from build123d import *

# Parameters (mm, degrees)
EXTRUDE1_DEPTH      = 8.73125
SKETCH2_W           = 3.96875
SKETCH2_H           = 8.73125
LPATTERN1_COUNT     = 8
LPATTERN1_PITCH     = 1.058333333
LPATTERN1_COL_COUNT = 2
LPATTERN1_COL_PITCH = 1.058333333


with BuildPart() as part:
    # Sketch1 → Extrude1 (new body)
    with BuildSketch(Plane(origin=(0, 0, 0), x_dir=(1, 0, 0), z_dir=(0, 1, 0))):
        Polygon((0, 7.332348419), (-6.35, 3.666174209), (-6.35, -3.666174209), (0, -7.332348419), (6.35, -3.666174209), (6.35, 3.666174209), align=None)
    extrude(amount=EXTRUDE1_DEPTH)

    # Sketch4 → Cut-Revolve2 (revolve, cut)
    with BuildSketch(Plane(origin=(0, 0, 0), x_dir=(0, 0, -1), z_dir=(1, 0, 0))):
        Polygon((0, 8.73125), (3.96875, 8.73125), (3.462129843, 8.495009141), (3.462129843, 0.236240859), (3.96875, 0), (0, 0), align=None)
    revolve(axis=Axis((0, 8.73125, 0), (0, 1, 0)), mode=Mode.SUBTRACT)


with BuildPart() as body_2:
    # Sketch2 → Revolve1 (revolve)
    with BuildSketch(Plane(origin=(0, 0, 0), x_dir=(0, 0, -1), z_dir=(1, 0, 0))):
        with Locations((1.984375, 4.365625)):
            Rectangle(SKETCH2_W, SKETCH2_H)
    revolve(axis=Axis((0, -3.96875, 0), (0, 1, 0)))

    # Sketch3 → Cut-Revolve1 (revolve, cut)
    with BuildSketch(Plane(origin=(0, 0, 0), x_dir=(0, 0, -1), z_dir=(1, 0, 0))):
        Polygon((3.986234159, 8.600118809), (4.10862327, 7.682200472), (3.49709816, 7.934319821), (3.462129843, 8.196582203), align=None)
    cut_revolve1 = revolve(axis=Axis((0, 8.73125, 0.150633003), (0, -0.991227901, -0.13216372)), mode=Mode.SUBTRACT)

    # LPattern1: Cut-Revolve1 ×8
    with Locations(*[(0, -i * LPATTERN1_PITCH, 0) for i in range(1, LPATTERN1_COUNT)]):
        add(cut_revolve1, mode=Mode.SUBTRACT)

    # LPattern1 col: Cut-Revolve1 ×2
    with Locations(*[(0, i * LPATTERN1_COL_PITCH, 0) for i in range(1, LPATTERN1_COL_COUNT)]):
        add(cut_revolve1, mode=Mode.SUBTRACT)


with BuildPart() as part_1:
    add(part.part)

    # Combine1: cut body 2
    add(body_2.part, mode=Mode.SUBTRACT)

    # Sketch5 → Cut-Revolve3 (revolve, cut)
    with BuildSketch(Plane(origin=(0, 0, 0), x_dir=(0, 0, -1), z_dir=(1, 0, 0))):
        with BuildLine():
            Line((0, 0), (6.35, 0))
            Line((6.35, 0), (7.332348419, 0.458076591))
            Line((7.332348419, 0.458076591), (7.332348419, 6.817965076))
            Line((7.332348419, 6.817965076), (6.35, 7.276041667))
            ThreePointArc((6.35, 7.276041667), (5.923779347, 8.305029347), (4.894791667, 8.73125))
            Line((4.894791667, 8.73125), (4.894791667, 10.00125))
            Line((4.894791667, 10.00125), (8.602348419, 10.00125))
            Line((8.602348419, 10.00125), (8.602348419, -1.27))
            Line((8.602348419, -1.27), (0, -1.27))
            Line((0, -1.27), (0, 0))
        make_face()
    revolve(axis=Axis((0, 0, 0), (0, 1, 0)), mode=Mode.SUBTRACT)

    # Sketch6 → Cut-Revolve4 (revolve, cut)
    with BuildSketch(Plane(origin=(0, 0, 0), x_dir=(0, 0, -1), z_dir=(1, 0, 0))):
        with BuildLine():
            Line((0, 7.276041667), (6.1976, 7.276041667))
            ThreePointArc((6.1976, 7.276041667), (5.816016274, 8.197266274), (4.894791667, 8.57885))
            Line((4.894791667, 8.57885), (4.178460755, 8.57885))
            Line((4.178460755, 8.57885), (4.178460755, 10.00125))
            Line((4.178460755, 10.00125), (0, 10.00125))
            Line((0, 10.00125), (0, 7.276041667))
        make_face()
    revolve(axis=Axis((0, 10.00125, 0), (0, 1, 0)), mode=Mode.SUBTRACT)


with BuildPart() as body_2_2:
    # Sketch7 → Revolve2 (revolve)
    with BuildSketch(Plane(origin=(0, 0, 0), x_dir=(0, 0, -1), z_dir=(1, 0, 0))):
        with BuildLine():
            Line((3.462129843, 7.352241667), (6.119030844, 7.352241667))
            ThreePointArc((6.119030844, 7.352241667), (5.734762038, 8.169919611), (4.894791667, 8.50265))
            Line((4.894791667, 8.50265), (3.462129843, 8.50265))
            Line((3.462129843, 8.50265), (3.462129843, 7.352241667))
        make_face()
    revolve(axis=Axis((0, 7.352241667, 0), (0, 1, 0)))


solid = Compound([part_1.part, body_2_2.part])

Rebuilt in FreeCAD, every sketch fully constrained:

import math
import FreeCAD as App
import Part
import Sketcher

V = App.Vector
Q = App.Units.Quantity

doc = App.newDocument("Part")
body = doc.addObject("PartDesign::Body", "Body")

# Sketch on XZ plane
sketch1 = body.newObject("Sketcher::SketchObject", "Sketch")
sketch1.AttachmentSupport = (doc.getObject("XZ_Plane"), [""])
sketch1.MapMode = "FlatFace"
sketch1.addGeometry([
    Part.LineSegment(V(0, -7, 0), V(-6, -4, 0)),  # 0
    Part.LineSegment(V(-6, -4, 0), V(-6, 4, 0)),  # 1
    Part.LineSegment(V(-6, 4, 0), V(0, 7, 0)),  # 2
    Part.LineSegment(V(0, 7, 0), V(6, 4, 0)),  # 3
    Part.LineSegment(V(6, 4, 0), V(6, -4, 0)),  # 4
    Part.LineSegment(V(6, -4, 0), V(0, -7, 0)),  # 5
], False)
sketch1.addConstraint([
    Sketcher.Constraint("Coincident", 0, 2, 1, 1),
    Sketcher.Constraint("Coincident", 1, 2, 2, 1),
    Sketcher.Constraint("Coincident", 2, 2, 3, 1),
    Sketcher.Constraint("Coincident", 3, 2, 4, 1),
    Sketcher.Constraint("Coincident", 4, 2, 5, 1),
    Sketcher.Constraint("Coincident", 5, 2, 0, 1),
    Sketcher.Constraint("Vertical", 1),
    Sketcher.Constraint("Vertical", 4),
    Sketcher.Constraint("Symmetric", 0, 2, 3, 2, -1, 1),
    Sketcher.Constraint("Symmetric", 2, 2, 5, 2, -1, 1),
    Sketcher.Constraint("PointOnObject", 2, 2, -2),
    Sketcher.Constraint("Parallel", 2, 5),
    Sketcher.Constraint("Horizontal", 1, 2, 3, 2),
    Sketcher.Constraint("Angle", 0, Q("150 deg")),
    Sketcher.Constraint("DistanceX", 1, 2, 3, 2, Q("0.5 in")),
    Sketcher.Constraint("DistanceY", 1, 1, 1, 2, Q("7.332348 mm")),
])
pad1 = body.newObject("PartDesign::Pad", "Pad")
pad1.Profile = sketch1
pad1.Length = Q("0.34375 in")
pad1.Reversed = True

# Sketch on YZ plane
sketch2 = body.newObject("Sketcher::SketchObject", "Sketch001")
sketch2.AttachmentSupport = (doc.getObject("YZ_Plane"), [""])
sketch2.MapMode = "FlatFace"
sketch2.addGeometry([
    Part.LineSegment(V(8.7, -4, 0), V(8.7, 0, 0)),  # 0
    Part.LineSegment(V(8.7, 0, 0), V(0, 0, 0)),  # 1
    Part.LineSegment(V(0, 0, 0), V(0, -4, 0)),  # 2
    Part.LineSegment(V(0, -4, 0), V(0.2, -3.5, 0)),  # 3
    Part.LineSegment(V(0.2, -3.5, 0), V(8.5, -3.5, 0)),  # 4
    Part.LineSegment(V(8.5, -3.5, 0), V(8.7, -4, 0)),  # 5
], False)
sketch2.addConstraint([
    Sketcher.Constraint("Coincident", 0, 2, 1, 1),
    Sketcher.Constraint("Coincident", 1, 2, 2, 1),
    Sketcher.Constraint("Coincident", 2, 2, 3, 1),
    Sketcher.Constraint("Coincident", 3, 2, 4, 1),
    Sketcher.Constraint("Coincident", 4, 2, 5, 1),
    Sketcher.Constraint("Coincident", 5, 2, 0, 1),
    Sketcher.Constraint("Vertical", 0),
    Sketcher.Constraint("Horizontal", 1),
    Sketcher.Constraint("Vertical", 2),
    Sketcher.Constraint("Horizontal", 4),
    Sketcher.Constraint("Coincident", 1, 2, -1, 1),
    Sketcher.Constraint("Horizontal", 2, 2, 5, 2),
    Sketcher.Constraint("Equal", 3, 5),
    Sketcher.Constraint("Angle", 3, Q("65 deg")),
    Sketcher.Constraint("DistanceX", 1, 2, 1, 1, Q("0.34375 in")),
    Sketcher.Constraint("DistanceY", 0, 1, 0, 2, Q("0.15625 in")),
    Sketcher.Constraint("DistanceX", 4, 1, 4, 2, Q("8.258768 mm")),
])
groove = body.newObject("PartDesign::Groove", "Groove")
groove.Profile = sketch2
groove.ReferenceAxis = (sketch2, ["H_Axis"])
groove.Angle = 360
body2 = doc.addObject("PartDesign::Body", "Body001")

# Sketch on YZ plane
sketch3 = body2.newObject("Sketcher::SketchObject", "Sketch002")
sketch3.AttachmentSupport = (doc.getObject("YZ_Plane001"), [""])
sketch3.MapMode = "FlatFace"
sketch3.addGeometry([
    Part.LineSegment(V(8.7, 0, 0), V(0, 0, 0)),
    Part.LineSegment(V(0, 0, 0), V(0, -4, 0)),
    Part.LineSegment(V(0, -4, 0), V(8.7, -4, 0)),
    Part.LineSegment(V(8.7, -4, 0), V(8.7, 0, 0)),
], False)
sketch3.addConstraint([
    Sketcher.Constraint("Coincident", 0, 2, 1, 1),
    Sketcher.Constraint("Coincident", 1, 2, 2, 1),
    Sketcher.Constraint("Coincident", 2, 2, 3, 1),
    Sketcher.Constraint("Coincident", 3, 2, 0, 1),
    Sketcher.Constraint("Horizontal", 0),
    Sketcher.Constraint("Vertical", 1),
    Sketcher.Constraint("Horizontal", 2),
    Sketcher.Constraint("Vertical", 3),
    Sketcher.Constraint("Coincident", 0, 2, -1, 1),
    Sketcher.Constraint("DistanceX", 0, 2, 0, 1, Q("0.34375 in")),
    Sketcher.Constraint("DistanceY", 1, 2, 1, 1, Q("0.15625 in")),
])
revolution = body2.newObject("PartDesign::Revolution", "Revolution")
revolution.Profile = sketch3
revolution.ReferenceAxis = (sketch3, ["H_Axis"])
revolution.Angle = 360

# Sketch on YZ plane
sketch4 = body2.newObject("Sketcher::SketchObject", "Sketch003")
sketch4.AttachmentSupport = (doc.getObject("YZ_Plane001"), [""])
sketch4.MapMode = "FlatFace"
sketch4.addGeometry([
    Part.LineSegment(V(7.68, -4.11, 0), V(8.6, -3.99, 0)),
    Part.LineSegment(V(8.6, -3.99, 0), V(8.2, -3.46, 0)),
    Part.LineSegment(V(8.2, -3.46, 0), V(7.93, -3.5, 0)),
    Part.LineSegment(V(7.93, -3.5, 0), V(7.68, -4.11, 0)),
], False)
sketch4.addGeometry(Part.LineSegment(V(8.06, 0.06, 0), V(7.14, -0.06, 0)), True)  # axis
sketch4.addConstraint([
    Sketcher.Constraint("Coincident", 0, 2, 1, 1),
    Sketcher.Constraint("Coincident", 1, 2, 2, 1),
    Sketcher.Constraint("Coincident", 2, 2, 3, 1),
    Sketcher.Constraint("Coincident", 3, 2, 0, 1),
    Sketcher.Constraint("Parallel", 0, 2),
    Sketcher.Constraint("Parallel", 2, 4),
    Sketcher.Constraint("Equal", 1, 3),
    Sketcher.Constraint("Equal", 0, 4),
    Sketcher.Constraint("DistanceX", -1, 1, 1, 2, Q("0.3227001 in")),
    Sketcher.Constraint("DistanceY", 2, 2, -1, 1, Q("3.497098 mm")),
    Sketcher.Constraint("DistanceX", -1, 1, 3, 2, Q("7.6822 mm")),
    Sketcher.Constraint("DistanceX", 2, 2, 0, 2, Q("0.665799 mm")),
    Sketcher.Constraint("Distance", 0, Q("0.926042 mm")),
    Sketcher.Constraint("Distance", 1, Q("0.661458 mm")),
    Sketcher.Constraint("DistanceX", -1, 1, 4, 1, Q("8.060462 mm")),
    Sketcher.Constraint("DistanceY", 0, 2, 4, 1, Q("4.047429 mm")),
])
groove2 = body2.newObject("PartDesign::Groove", "Groove001")
groove2.Profile = sketch4
groove2.ReferenceAxis = (sketch4, ["Axis0"])
groove2.Angle = 360
doc.recompute()

linearpattern = body2.newObject("PartDesign::LinearPattern", "LinearPattern")
linearpattern.Originals = [groove2]
linearpattern.Direction = (doc.getObject("Y_Axis001"), [""])
linearpattern.Mode = "offset"
linearpattern.Offset = 1.058333
linearpattern.Occurrences = 8
linearpattern.Reversed = True
body2.Tip = linearpattern
doc.recompute()

linearpattern2 = body2.newObject("PartDesign::LinearPattern", "LinearPattern001")
linearpattern2.Originals = [groove2]
linearpattern2.Direction = (doc.getObject("Y_Axis001"), [""])
linearpattern2.Mode = "offset"
linearpattern2.Offset = 1.058333
linearpattern2.Occurrences = 2
body2.Tip = linearpattern2
doc.recompute()

boolean = body.newObject("PartDesign::Boolean", "Boolean")
boolean.Type = "Cut"
boolean.addObjects([body2])

# Sketch on YZ plane
sketch5 = body.newObject("Sketcher::SketchObject", "Sketch004")
sketch5.AttachmentSupport = (doc.getObject("YZ_Plane"), [""])
sketch5.MapMode = "FlatFace"
sketch5.addGeometry([
    Part.LineSegment(V(0, -6.3, 0), V(0, 0, 0)),  # 0
    Part.LineSegment(V(0, 0, 0), V(-1.3, 0, 0)),  # 1
    Part.LineSegment(V(-1.3, 0, 0), V(-1.3, -8.6, 0)),  # 2
    Part.LineSegment(V(-1.3, -8.6, 0), V(10, -8.6, 0)),  # 3
    Part.LineSegment(V(10, -8.6, 0), V(10, -4.9, 0)),  # 4
    Part.LineSegment(V(10, -4.9, 0), V(8.7, -4.9, 0)),  # 5
    Part.ArcOfCircle(Part.Circle(V(7.3, -4.9, 0), V(0, 0, 1), 1.5), math.radians(-90), math.radians(0)),  # 6
    Part.LineSegment(V(7.3, -6.3, 0), V(6.8, -7.3, 0)),  # 7
    Part.LineSegment(V(6.8, -7.3, 0), V(0.5, -7.3, 0)),  # 8
    Part.LineSegment(V(0.5, -7.3, 0), V(0, -6.3, 0)),  # 9
], False)
sketch5.addConstraint([
    Sketcher.Constraint("Coincident", 0, 2, 1, 1),
    Sketcher.Constraint("Coincident", 1, 2, 2, 1),
    Sketcher.Constraint("Coincident", 2, 2, 3, 1),
    Sketcher.Constraint("Coincident", 3, 2, 4, 1),
    Sketcher.Constraint("Coincident", 4, 2, 5, 1),
    Sketcher.Constraint("Coincident", 5, 2, 6, 2),
    Sketcher.Constraint("Coincident", 6, 1, 7, 1),
    Sketcher.Constraint("Coincident", 7, 2, 8, 1),
    Sketcher.Constraint("Coincident", 8, 2, 9, 1),
    Sketcher.Constraint("Coincident", 9, 2, 0, 1),
    Sketcher.Constraint("Vertical", 0),
    Sketcher.Constraint("Horizontal", 1),
    Sketcher.Constraint("Vertical", 2),
    Sketcher.Constraint("Horizontal", 3),
    Sketcher.Constraint("Vertical", 4),
    Sketcher.Constraint("Horizontal", 5),
    Sketcher.Constraint("Horizontal", 8),
    Sketcher.Constraint("Coincident", 0, 2, -1, 1),
    Sketcher.Constraint("Horizontal", 6, 3, 4, 2),
    Sketcher.Constraint("Horizontal", 6, 1, 9, 2),
    Sketcher.Constraint("Equal", 1, 5),
    Sketcher.Constraint("Equal", 7, 9),
    Sketcher.Constraint("Angle", 7, Q("-115 deg")),
    Sketcher.Constraint("DistanceX", 1, 2, 1, 1, Q("0.05 in")),
    Sketcher.Constraint("DistanceY", 0, 1, 0, 2, Q("0.25 in")),
    Sketcher.Constraint("DistanceY", 3, 2, 7, 2, Q("0.05 in")),
    Sketcher.Constraint("DistanceX", -1, 1, 5, 2, Q("0.34375 in")),
    Sketcher.Constraint("Radius", 6, Q("1.455208 mm")),
    Sketcher.Constraint("Distance", 7, Q("1.083902 mm")),
    Sketcher.Constraint("DistanceX", 8, 2, 8, 1, Q("6.359888 mm")),
])
groove3 = body.newObject("PartDesign::Groove", "Groove002")
groove3.Profile = sketch5
groove3.ReferenceAxis = (sketch5, ["H_Axis"])
groove3.Angle = 360

# Sketch on YZ plane
sketch6 = body.newObject("Sketcher::SketchObject", "Sketch005")
sketch6.AttachmentSupport = (doc.getObject("YZ_Plane"), [""])
sketch6.MapMode = "FlatFace"
sketch6.addGeometry([
    Part.LineSegment(V(7.3, 0, 0), V(7.3, -6.2, 0)),  # 0
    Part.ArcOfCircle(Part.Circle(V(7.3, -4.9, 0), V(0, 0, 1), 1.3), math.radians(-90), math.radians(0)),  # 1
    Part.LineSegment(V(8.6, -4.9, 0), V(8.6, -4.2, 0)),  # 2
    Part.LineSegment(V(8.6, -4.2, 0), V(10, -4.2, 0)),  # 3
    Part.LineSegment(V(10, -4.2, 0), V(10, 0, 0)),  # 4
    Part.LineSegment(V(10, 0, 0), V(7.3, 0, 0)),  # 5
], False)
sketch6.addConstraint([
    Sketcher.Constraint("Coincident", 0, 2, 1, 1),
    Sketcher.Constraint("Tangent", 1, 2, 2, 1),
    Sketcher.Constraint("Coincident", 2, 2, 3, 1),
    Sketcher.Constraint("Coincident", 3, 2, 4, 1),
    Sketcher.Constraint("Coincident", 4, 2, 5, 1),
    Sketcher.Constraint("Coincident", 5, 2, 0, 1),
    Sketcher.Constraint("Vertical", 0),
    Sketcher.Constraint("Vertical", 2),
    Sketcher.Constraint("Horizontal", 3),
    Sketcher.Constraint("Vertical", 4),
    Sketcher.Constraint("Horizontal", 5),
    Sketcher.Constraint("PointOnObject", 4, 2, -1),
    Sketcher.Constraint("Vertical", 1, 3, 0, 2),
    Sketcher.Constraint("DistanceX", 3, 1, 3, 2, Q("0.056 in")),
    Sketcher.Constraint("DistanceY", 0, 2, 0, 1, Q("0.244 in")),
    Sketcher.Constraint("Radius", 1, Q("1.302808 mm")),
    Sketcher.Constraint("DistanceY", 2, 1, 2, 2, Q("0.716331 mm")),
    Sketcher.Constraint("DistanceX", -1, 1, 1, 3, Q("7.276042 mm")),
])
groove4 = body.newObject("PartDesign::Groove", "Groove003")
groove4.Profile = sketch6
groove4.ReferenceAxis = (sketch6, ["H_Axis"])
groove4.Angle = 360
body3 = doc.addObject("PartDesign::Body", "Body002")

# Sketch on YZ plane
sketch7 = body3.newObject("Sketcher::SketchObject", "Sketch006")
sketch7.AttachmentSupport = (doc.getObject("YZ_Plane002"), [""])
sketch7.MapMode = "FlatFace"
sketch7.addGeometry([
    Part.LineSegment(V(7.4, -3.5, 0), V(7.4, -6.1, 0)),
    Part.ArcOfCircle(Part.Circle(V(7.3, -4.9, 0), V(0, 0, 1), 1.2), math.radians(-86), math.radians(0)),
    Part.LineSegment(V(8.5, -4.9, 0), V(8.5, -3.5, 0)),
    Part.LineSegment(V(8.5, -3.5, 0), V(7.4, -3.5, 0)),
], False)
sketch7.addConstraint([
    Sketcher.Constraint("Coincident", 0, 2, 1, 1),
    Sketcher.Constraint("Tangent", 1, 2, 2, 1),
    Sketcher.Constraint("Coincident", 2, 2, 3, 1),
    Sketcher.Constraint("Coincident", 3, 2, 0, 1),
    Sketcher.Constraint("Vertical", 0),
    Sketcher.Constraint("Vertical", 2),
    Sketcher.Constraint("Horizontal", 3),
    Sketcher.Constraint("Radius", 1, Q("1.226608 mm")),
    Sketcher.Constraint("DistanceX", 1, 3, 0, 2, Q("0.003 in")),
    Sketcher.Constraint("DistanceY", 0, 2, 0, 1, Q("2.656901 mm")),
    Sketcher.Constraint("DistanceX", -1, 1, 1, 3, Q("7.276042 mm")),
    Sketcher.Constraint("DistanceY", 1, 3, -1, 1, Q("4.894792 mm")),
])
revolution2 = body3.newObject("PartDesign::Revolution", "Revolution001")
revolution2.Profile = sketch7
revolution2.ReferenceAxis = (sketch7, ["H_Axis"])
revolution2.Angle = 360

doc.recompute()
